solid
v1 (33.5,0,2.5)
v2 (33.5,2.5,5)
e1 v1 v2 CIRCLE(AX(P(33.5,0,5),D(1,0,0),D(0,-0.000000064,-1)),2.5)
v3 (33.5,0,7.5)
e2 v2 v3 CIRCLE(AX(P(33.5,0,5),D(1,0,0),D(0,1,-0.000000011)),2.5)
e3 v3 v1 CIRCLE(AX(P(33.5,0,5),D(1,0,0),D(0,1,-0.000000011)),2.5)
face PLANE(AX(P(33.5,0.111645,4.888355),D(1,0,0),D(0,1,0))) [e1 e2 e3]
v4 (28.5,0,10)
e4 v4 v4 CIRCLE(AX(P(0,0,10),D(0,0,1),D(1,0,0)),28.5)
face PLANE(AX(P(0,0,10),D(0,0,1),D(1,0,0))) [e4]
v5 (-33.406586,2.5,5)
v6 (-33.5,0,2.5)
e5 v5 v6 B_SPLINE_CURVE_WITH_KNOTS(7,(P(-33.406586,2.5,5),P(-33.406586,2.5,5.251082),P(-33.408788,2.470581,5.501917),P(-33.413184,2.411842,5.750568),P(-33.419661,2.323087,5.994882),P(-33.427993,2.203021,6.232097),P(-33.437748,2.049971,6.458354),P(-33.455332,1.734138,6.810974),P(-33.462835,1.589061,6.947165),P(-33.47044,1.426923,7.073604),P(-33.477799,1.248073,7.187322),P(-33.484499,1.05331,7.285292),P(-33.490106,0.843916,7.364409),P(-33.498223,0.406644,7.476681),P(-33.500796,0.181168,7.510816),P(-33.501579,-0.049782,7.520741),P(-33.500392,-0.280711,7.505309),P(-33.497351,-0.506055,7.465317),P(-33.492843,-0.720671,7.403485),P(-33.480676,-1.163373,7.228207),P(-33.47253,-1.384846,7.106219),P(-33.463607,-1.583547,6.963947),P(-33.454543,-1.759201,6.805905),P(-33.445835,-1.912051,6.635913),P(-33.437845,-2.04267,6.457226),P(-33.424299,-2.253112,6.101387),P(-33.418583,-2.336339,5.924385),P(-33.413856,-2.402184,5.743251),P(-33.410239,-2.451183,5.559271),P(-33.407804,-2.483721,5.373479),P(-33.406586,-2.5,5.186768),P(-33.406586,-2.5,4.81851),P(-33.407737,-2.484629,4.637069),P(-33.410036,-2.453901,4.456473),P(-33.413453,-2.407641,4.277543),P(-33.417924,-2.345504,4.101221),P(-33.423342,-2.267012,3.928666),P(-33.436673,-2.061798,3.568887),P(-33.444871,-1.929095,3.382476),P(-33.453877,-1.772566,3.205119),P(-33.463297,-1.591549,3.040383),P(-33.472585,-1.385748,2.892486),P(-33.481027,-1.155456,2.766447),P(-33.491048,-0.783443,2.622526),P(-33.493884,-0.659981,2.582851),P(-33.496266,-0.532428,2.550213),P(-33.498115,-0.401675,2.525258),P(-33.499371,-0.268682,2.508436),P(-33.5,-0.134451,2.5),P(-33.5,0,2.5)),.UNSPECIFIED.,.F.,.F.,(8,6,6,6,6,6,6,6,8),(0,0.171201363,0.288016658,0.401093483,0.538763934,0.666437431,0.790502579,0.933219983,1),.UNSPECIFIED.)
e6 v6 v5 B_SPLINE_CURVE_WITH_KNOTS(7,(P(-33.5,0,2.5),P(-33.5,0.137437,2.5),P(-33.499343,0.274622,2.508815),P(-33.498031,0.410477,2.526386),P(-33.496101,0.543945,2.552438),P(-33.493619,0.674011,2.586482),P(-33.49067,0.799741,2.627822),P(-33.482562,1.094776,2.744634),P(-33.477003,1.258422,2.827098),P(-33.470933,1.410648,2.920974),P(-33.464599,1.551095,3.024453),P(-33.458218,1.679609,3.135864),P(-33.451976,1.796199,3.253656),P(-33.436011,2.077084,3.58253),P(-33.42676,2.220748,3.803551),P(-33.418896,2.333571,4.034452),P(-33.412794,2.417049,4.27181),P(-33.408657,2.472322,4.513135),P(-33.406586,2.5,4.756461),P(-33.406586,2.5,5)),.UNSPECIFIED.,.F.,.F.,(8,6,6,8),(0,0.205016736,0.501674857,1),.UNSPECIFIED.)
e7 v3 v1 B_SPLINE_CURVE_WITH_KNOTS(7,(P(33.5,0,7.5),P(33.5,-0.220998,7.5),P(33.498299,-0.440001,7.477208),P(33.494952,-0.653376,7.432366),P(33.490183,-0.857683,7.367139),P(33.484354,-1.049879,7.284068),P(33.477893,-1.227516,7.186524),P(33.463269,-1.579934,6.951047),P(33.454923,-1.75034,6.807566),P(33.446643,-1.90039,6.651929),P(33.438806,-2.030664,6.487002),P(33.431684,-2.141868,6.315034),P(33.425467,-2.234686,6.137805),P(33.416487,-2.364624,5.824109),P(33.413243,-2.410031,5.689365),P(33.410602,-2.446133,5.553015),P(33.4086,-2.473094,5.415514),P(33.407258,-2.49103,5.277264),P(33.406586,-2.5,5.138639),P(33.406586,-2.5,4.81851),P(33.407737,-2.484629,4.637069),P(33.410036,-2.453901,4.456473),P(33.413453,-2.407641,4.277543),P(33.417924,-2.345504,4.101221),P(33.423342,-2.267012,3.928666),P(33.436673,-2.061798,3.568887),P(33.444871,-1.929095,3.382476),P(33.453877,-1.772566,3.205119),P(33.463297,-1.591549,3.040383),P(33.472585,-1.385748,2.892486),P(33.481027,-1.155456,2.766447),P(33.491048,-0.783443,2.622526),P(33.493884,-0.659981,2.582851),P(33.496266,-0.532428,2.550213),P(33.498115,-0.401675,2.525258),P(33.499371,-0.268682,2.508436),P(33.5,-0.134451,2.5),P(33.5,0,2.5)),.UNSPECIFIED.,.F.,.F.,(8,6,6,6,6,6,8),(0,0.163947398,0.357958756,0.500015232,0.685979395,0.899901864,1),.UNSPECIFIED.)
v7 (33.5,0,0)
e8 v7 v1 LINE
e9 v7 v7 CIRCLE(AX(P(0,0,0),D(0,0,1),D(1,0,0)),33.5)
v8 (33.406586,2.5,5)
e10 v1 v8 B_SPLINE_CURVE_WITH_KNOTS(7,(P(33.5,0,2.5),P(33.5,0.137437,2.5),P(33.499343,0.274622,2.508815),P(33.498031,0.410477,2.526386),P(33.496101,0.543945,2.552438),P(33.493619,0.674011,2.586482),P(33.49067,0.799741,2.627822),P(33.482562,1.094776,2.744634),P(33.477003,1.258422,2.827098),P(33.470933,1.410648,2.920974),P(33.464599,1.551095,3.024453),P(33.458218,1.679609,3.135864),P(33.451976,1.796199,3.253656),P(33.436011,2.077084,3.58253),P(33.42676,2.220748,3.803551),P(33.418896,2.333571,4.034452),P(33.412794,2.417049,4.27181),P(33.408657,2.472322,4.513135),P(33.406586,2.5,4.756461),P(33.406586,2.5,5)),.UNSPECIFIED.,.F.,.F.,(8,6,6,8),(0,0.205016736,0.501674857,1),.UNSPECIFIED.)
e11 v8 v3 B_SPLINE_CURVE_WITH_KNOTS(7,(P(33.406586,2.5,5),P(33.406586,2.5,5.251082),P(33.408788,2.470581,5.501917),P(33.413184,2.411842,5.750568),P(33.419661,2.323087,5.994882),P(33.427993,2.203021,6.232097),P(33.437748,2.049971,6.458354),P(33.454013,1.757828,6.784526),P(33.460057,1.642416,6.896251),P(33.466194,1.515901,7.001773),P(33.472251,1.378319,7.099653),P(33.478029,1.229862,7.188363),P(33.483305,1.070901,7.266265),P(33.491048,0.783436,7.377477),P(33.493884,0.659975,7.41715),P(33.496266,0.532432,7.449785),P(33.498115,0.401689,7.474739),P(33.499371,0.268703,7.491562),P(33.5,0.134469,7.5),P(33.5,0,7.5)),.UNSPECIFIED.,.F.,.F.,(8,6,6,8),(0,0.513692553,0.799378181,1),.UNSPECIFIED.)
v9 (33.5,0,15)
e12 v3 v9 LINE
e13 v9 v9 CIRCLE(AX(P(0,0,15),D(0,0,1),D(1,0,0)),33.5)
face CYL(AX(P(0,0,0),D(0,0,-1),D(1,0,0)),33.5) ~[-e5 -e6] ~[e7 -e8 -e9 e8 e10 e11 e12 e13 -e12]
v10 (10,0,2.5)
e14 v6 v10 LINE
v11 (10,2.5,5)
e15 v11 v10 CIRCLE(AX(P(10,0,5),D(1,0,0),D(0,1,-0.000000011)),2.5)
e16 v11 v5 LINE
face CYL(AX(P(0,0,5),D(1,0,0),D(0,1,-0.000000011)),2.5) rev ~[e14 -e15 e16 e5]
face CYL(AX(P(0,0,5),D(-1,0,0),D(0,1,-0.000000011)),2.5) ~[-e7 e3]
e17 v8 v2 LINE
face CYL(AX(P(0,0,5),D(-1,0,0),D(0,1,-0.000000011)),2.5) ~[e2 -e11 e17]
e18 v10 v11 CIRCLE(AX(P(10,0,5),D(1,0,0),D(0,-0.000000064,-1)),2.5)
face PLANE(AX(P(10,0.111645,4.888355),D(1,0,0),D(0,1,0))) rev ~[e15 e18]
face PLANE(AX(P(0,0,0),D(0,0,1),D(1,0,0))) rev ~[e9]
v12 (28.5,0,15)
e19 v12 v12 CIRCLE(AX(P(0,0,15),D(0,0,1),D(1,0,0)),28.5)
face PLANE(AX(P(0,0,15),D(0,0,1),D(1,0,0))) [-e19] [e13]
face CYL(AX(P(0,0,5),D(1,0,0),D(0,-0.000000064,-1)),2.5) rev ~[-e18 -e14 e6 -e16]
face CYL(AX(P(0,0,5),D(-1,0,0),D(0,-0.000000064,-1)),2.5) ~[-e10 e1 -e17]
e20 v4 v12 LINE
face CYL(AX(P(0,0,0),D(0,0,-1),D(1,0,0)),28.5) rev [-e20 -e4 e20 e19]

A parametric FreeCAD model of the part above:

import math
import FreeCAD as App
import Part
import Sketcher
from FreeCAD import Vector

doc = App.newDocument("Part")
body = doc.addObject("PartDesign::Body", "Body")

# Sketch on XY plane
sketch1 = body.newObject("Sketcher::SketchObject", "Sketch")
sketch1.AttachmentSupport = (doc.getObject("XY_Plane"), [""])
sketch1.MapMode = "FlatFace"
sketch1.addGeometry([
    Part.Circle(Vector(0, 0, 0), Vector(0, 0, 1), 34),
    Part.Circle(Vector(0, 0, 0), Vector(0, 0, 1), 28),
], False)
sketch1.addConstraint([
    Sketcher.Constraint("Coincident", 0, 3, -1, 1),
    Sketcher.Constraint("Coincident", 1, 3, -1, 1),
    Sketcher.Constraint("Diameter", 0, 67.0),
    Sketcher.Constraint("Diameter", 1, 57.0),
])
pad1 = body.newObject("PartDesign::Pad", "Pad")
pad1.Profile = sketch1
pad1.Length = 15

# Sketch on XY plane
sketch2 = body.newObject("Sketcher::SketchObject", "Sketch001")
sketch2.AttachmentSupport = (doc.getObject("XY_Plane"), [""])
sketch2.MapMode = "FlatFace"
sketch2.addGeometry(Part.Circle(Vector(0, 0, 0), Vector(0, 0, 1), 28), False)
sketch2.addConstraint([
    Sketcher.Constraint("Coincident", 0, 3, -1, 1),
    Sketcher.Constraint("Diameter", 0, 57.0),
])
pad2 = body.newObject("PartDesign::Pad", "Pad001")
pad2.Profile = sketch2
pad2.Length = 10

# Sketch on YZ plane
sketch3 = body.newObject("Sketcher::SketchObject", "Sketch002")
sketch3.AttachmentSupport = (doc.getObject("YZ_Plane"), [""])
sketch3.MapMode = "FlatFace"
sketch3.addGeometry([
    Part.ArcOfCircle(Part.Circle(Vector(0, 5, 0), Vector(0, 0, 1), 2.5), math.radians(-90), math.radians(0)),
    Part.ArcOfCircle(Part.Circle(Vector(0, 5, 0), Vector(0, 0, 1), 2.5), math.radians(0), math.radians(270)),
], False)
sketch3.addConstraint([
    Sketcher.Constraint("Tangent", 0, 1, 1, 2),
    Sketcher.Constraint("Coincident", 1, 1, 0, 2),
    Sketcher.Constraint("PointOnObject", 0, 3, -2),
    Sketcher.Constraint("PointOnObject", 0, 1, -2),
    Sketcher.Constraint("Horizontal", 0, 3, 1, 1),
    Sketcher.Constraint("Radius", 0, 2.5),
    Sketcher.Constraint("DistanceY", -1, 1, 0, 3, 5.0),
])
pocket1 = body.newObject("PartDesign::Pocket", "Pocket")
pocket1.Profile = sketch3
pocket1.Length = 70
pocket1.Midplane = True

# Sketch on YZ plane
sketch4 = body.newObject("Sketcher::SketchObject", "Sketch003")
sketch4.AttachmentSupport = (doc.getObject("YZ_Plane"), [""])
sketch4.MapMode = "FlatFace"
sketch4.addGeometry([
    Part.ArcOfCircle(Part.Circle(Vector(0, 5, 0), Vector(0, 0, 1), 2.5), math.radians(-90), math.radians(0)),
    Part.ArcOfCircle(Part.Circle(Vector(0, 5, 0), Vector(0, 0, 1), 2.5), math.radians(0), math.radians(270)),
], False)
sketch4.addConstraint([
    Sketcher.Constraint("Tangent", 0, 1, 1, 2),
    Sketcher.Constraint("Coincident", 1, 1, 0, 2),
    Sketcher.Constraint("PointOnObject", 0, 3, -2),
    Sketcher.Constraint("PointOnObject", 0, 1, -2),
    Sketcher.Constraint("Horizontal", 0, 3, 1, 1),
    Sketcher.Constraint("Radius", 0, 2.5),
    Sketcher.Constraint("DistanceY", -1, 1, 0, 3, 5.0),
])
pad3 = body.newObject("PartDesign::Pad", "Pad002")
pad3.Profile = sketch4
pad3.Length = 33.5

# Sketch on YZ plane
sketch5 = body.newObject("Sketcher::SketchObject", "Sketch004")
sketch5.AttachmentSupport = (doc.getObject("YZ_Plane"), [""])
sketch5.MapMode = "FlatFace"
sketch5.addGeometry([
    Part.ArcOfCircle(Part.Circle(Vector(0, 5, 0), Vector(0, 0, 1), 2.5), math.radians(-90), math.radians(0)),
    Part.ArcOfCircle(Part.Circle(Vector(0, 5, 0), Vector(0, 0, 1), 2.5), math.radians(0), math.radians(270)),
], False)
sketch5.addConstraint([
    Sketcher.Constraint("Tangent", 0, 1, 1, 2),
    Sketcher.Constraint("Coincident", 1, 1, 0, 2),
    Sketcher.Constraint("PointOnObject", 0, 3, -2),
    Sketcher.Constraint("PointOnObject", 0, 1, -2),
    Sketcher.Constraint("Horizontal", 0, 3, 1, 1),
    Sketcher.Constraint("Radius", 0, 2.5),
    Sketcher.Constraint("DistanceY", -1, 1, 0, 3, 5.0),
])
pocket2 = body.newObject("PartDesign::Pocket", "Pocket001")
pocket2.Profile = sketch5
pocket2.Length = 10
pocket2.Reversed = True

doc.recompute()
